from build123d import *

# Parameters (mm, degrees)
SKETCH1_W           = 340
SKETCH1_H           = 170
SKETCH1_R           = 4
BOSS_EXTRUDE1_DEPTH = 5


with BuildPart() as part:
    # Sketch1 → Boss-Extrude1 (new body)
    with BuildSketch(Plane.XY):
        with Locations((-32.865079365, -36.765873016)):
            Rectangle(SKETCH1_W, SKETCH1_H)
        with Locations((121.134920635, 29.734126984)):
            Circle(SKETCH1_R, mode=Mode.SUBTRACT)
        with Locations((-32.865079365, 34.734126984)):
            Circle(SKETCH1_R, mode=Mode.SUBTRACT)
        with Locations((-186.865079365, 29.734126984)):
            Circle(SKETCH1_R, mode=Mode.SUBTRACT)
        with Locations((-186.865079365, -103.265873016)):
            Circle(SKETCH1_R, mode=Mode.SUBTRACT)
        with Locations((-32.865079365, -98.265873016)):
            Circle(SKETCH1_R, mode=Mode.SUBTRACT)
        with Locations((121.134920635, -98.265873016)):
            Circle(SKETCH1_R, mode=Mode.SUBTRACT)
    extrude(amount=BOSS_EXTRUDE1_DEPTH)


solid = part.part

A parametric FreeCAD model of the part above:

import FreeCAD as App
import Part
import Sketcher
from FreeCAD import Vector
Q = App.Units.Quantity

doc = App.newDocument("Part")
params = doc.addObject("Spreadsheet::Sheet", "Params")
for row, (alias, value) in enumerate([
    ("sketch1_diameter", "8 mm"),
    ("sketch1_width", "340 mm"),
    ("sketch1_height", "170 mm"),
    ("pad1_length", "5 mm"),
], start=1):
    params.set(f"A{row}", alias)
    params.set(f"B{row}", "=" + value)
    params.setAlias(f"B{row}", alias)

body = doc.addObject("PartDesign::Body", "Body")

# Sketch on XY plane
sketch1 = body.newObject("Sketcher::SketchObject", "Sketch")
sketch1.AttachmentSupport = (doc.getObject("XY_Plane"), [""])
sketch1.MapMode = "FlatFace"
sketch1.addGeometry(Part.LineSegment(Vector(-202.9, 48.2, 0), Vector(-202.9, -121.8, 0)), False)
sketch1.addGeometry(Part.LineSegment(Vector(-202.9, -121.8, 0), Vector(137.1, -121.8, 0)), False)
sketch1.addGeometry(Part.LineSegment(Vector(137.1, -121.8, 0), Vector(137.1, 48.2, 0)), False)
sketch1.addGeometry(Part.LineSegment(Vector(137.1, 48.2, 0), Vector(-202.9, 48.2, 0)), False)
sketch1.addGeometry(Part.Circle(Vector(-186.9, -103.3, 0), Vector(0, 0, 1), 4), False)
sketch1.addGeometry(Part.Circle(Vector(-32.9, -98.3, 0), Vector(0, 0, 1), 4), False)
sketch1.addGeometry(Part.Circle(Vector(121.1, -98.3, 0), Vector(0, 0, 1), 4), False)
sketch1.addGeometry(Part.Circle(Vector(-186.9, 29.7, 0), Vector(0, 0, 1), 4), False)
sketch1.addGeometry(Part.Circle(Vector(-32.9, 34.7, 0), Vector(0, 0, 1), 4), False)
sketch1.addGeometry(Part.Circle(Vector(121.1, 29.7, 0), Vector(0, 0, 1), 4), False)
sketch1.addConstraint(Sketcher.Constraint("Coincident", 0, 2, 1, 1))
sketch1.addConstraint(Sketcher.Constraint("Coincident", 1, 2, 2, 1))
sketch1.addConstraint(Sketcher.Constraint("Coincident", 2, 2, 3, 1))
sketch1.addConstraint(Sketcher.Constraint("Coincident", 3, 2, 0, 1))
sketch1.addConstraint(Sketcher.Constraint("Vertical", 0))
sketch1.addConstraint(Sketcher.Constraint("Horizontal", 1))
sketch1.addConstraint(Sketcher.Constraint("Vertical", 2))
sketch1.addConstraint(Sketcher.Constraint("Horizontal", 3))
sketch1.addConstraint(Sketcher.Constraint("Equal", 4, 5))
sketch1.addConstraint(Sketcher.Constraint("Equal", 5, 6))
sketch1.addConstraint(Sketcher.Constraint("Equal", 6, 7))
sketch1.addConstraint(Sketcher.Constraint("Equal", 7, 8))
sketch1.addConstraint(Sketcher.Constraint("Equal", 8, 9))
sketch1.addConstraint(Sketcher.Constraint("Horizontal", 5, 3, 6, 3))
sketch1.addConstraint(Sketcher.Constraint("Horizontal", 7, 3, 9, 3))
sketch1.addConstraint(Sketcher.Constraint("Vertical", 4, 3, 7, 3))
sketch1.addConstraint(Sketcher.Constraint("Vertical", 5, 3, 8, 3))
sketch1.addConstraint(Sketcher.Constraint("Vertical", 6, 3, 9, 3))
sketch1.addConstraint(Sketcher.Constraint("Diameter", 4, Q("8 mm")))
sketch1.addConstraint(Sketcher.Constraint("DistanceX", 1, 1, 1, 2, Q("340 mm")))
sketch1.addConstraint(Sketcher.Constraint("DistanceY", 0, 2, 0, 1, Q("170 mm")))
sketch1.addConstraint(Sketcher.Constraint("DistanceX", 4, 3, 5, 3, Q("154 mm")))
sketch1.addConstraint(Sketcher.Constraint("DistanceY", 4, 3, 5, 3, Q("5 mm")))
sketch1.addConstraint(Sketcher.Constraint("DistanceX", 5, 3, 6, 3, Q("154 mm")))
sketch1.addConstraint(Sketcher.Constraint("DistanceY", 4, 3, 7, 3, Q("133 mm")))
sketch1.addConstraint(Sketcher.Constraint("DistanceY", 5, 3, 8, 3, Q("133 mm")))
sketch1.addConstraint(Sketcher.Constraint("DistanceX", 0, 2, 4, 3, Q("16 mm")))
sketch1.addConstraint(Sketcher.Constraint("DistanceY", 0, 2, 4, 3, Q("18.5 mm")))
sketch1.addConstraint(Sketcher.Constraint("DistanceX", 4, 3, -1, 1, Q("186.865079 mm")))
sketch1.addConstraint(Sketcher.Constraint("DistanceY", 4, 3, -1, 1, Q("103.265873 mm")))
sketch1.setExpression("Constraints[18]", "Params.sketch1_diameter")
sketch1.setExpression("Constraints[19]", "Params.sketch1_width")
sketch1.setExpression("Constraints[20]", "Params.sketch1_height")
pad1 = body.newObject("PartDesign::Pad", "Pad")
pad1.Profile = sketch1
pad1.setExpression("Length", "Params.pad1_length")

doc.recompute()
